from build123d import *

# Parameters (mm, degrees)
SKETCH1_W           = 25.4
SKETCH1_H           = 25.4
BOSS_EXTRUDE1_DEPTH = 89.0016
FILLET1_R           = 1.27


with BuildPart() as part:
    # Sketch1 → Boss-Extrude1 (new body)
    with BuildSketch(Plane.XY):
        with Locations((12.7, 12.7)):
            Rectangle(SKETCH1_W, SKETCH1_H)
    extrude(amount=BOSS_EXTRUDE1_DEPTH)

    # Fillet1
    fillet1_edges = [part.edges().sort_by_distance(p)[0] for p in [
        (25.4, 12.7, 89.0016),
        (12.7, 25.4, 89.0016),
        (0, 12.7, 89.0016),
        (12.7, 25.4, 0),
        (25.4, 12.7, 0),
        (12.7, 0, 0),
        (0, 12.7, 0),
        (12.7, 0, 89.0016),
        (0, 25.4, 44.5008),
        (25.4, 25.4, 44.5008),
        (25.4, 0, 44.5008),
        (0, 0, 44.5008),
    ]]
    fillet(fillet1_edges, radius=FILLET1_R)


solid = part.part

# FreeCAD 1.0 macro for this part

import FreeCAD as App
import Part
import Sketcher
from FreeCAD import Vector
Q = App.Units.Quantity


def add_polygon(sketch, points):
    """Adds a closed chain of lines whose ends are joined by coincident constraints."""
    first, n = sketch.GeometryCount, len(points)
    for a, b in zip(points, points[1:] + points[:1]):
        sketch.addGeometry(Part.LineSegment(App.Vector(*a, 0), App.Vector(*b, 0)), False)
    for i in range(n):
        sketch.addConstraint(Sketcher.Constraint("Coincident", first + i, 2, first + (i + 1) % n, 1))

doc = App.newDocument("Part")
body = doc.addObject("PartDesign::Body", "Body")

# Sketch on XY plane
sketch1 = doc.addObject("Sketcher::SketchObject", "Sketch")
body.addObject(sketch1)
sketch1.AttachmentSupport = (doc.XY_Plane, [""])
sketch1.MapMode = "FlatFace"
add_polygon(sketch1, [(0, 25.4), (0, 0), (25.4, 0), (25.4, 25.4)])  # lines 0-3
sketch1.addConstraint([
    Sketcher.Constraint("Vertical", 0),
    Sketcher.Constraint("Horizontal", 1),
    Sketcher.Constraint("Vertical", 2),
    Sketcher.Constraint("Horizontal", 3),
    Sketcher.Constraint("Coincident", 0, 2, -1, 1),
    Sketcher.Constraint("Equal", 3, 0),
    Sketcher.Constraint("DistanceX", 1, 1, 1, 2, Q("1 in")),
])
pad1 = doc.addObject("PartDesign::Pad", "Pad")
body.addObject(pad1)
pad1.Profile = sketch1
pad1.Length = Q("3.504 in")
doc.recompute()

fillet = doc.addObject("PartDesign::Fillet", "Fillet")
body.addObject(fillet)
fillet.Base = (pad1, ["Edge1"])
fillet.UseAllEdges = True
fillet.Radius = Q("0.05 in")

doc.recompute()
